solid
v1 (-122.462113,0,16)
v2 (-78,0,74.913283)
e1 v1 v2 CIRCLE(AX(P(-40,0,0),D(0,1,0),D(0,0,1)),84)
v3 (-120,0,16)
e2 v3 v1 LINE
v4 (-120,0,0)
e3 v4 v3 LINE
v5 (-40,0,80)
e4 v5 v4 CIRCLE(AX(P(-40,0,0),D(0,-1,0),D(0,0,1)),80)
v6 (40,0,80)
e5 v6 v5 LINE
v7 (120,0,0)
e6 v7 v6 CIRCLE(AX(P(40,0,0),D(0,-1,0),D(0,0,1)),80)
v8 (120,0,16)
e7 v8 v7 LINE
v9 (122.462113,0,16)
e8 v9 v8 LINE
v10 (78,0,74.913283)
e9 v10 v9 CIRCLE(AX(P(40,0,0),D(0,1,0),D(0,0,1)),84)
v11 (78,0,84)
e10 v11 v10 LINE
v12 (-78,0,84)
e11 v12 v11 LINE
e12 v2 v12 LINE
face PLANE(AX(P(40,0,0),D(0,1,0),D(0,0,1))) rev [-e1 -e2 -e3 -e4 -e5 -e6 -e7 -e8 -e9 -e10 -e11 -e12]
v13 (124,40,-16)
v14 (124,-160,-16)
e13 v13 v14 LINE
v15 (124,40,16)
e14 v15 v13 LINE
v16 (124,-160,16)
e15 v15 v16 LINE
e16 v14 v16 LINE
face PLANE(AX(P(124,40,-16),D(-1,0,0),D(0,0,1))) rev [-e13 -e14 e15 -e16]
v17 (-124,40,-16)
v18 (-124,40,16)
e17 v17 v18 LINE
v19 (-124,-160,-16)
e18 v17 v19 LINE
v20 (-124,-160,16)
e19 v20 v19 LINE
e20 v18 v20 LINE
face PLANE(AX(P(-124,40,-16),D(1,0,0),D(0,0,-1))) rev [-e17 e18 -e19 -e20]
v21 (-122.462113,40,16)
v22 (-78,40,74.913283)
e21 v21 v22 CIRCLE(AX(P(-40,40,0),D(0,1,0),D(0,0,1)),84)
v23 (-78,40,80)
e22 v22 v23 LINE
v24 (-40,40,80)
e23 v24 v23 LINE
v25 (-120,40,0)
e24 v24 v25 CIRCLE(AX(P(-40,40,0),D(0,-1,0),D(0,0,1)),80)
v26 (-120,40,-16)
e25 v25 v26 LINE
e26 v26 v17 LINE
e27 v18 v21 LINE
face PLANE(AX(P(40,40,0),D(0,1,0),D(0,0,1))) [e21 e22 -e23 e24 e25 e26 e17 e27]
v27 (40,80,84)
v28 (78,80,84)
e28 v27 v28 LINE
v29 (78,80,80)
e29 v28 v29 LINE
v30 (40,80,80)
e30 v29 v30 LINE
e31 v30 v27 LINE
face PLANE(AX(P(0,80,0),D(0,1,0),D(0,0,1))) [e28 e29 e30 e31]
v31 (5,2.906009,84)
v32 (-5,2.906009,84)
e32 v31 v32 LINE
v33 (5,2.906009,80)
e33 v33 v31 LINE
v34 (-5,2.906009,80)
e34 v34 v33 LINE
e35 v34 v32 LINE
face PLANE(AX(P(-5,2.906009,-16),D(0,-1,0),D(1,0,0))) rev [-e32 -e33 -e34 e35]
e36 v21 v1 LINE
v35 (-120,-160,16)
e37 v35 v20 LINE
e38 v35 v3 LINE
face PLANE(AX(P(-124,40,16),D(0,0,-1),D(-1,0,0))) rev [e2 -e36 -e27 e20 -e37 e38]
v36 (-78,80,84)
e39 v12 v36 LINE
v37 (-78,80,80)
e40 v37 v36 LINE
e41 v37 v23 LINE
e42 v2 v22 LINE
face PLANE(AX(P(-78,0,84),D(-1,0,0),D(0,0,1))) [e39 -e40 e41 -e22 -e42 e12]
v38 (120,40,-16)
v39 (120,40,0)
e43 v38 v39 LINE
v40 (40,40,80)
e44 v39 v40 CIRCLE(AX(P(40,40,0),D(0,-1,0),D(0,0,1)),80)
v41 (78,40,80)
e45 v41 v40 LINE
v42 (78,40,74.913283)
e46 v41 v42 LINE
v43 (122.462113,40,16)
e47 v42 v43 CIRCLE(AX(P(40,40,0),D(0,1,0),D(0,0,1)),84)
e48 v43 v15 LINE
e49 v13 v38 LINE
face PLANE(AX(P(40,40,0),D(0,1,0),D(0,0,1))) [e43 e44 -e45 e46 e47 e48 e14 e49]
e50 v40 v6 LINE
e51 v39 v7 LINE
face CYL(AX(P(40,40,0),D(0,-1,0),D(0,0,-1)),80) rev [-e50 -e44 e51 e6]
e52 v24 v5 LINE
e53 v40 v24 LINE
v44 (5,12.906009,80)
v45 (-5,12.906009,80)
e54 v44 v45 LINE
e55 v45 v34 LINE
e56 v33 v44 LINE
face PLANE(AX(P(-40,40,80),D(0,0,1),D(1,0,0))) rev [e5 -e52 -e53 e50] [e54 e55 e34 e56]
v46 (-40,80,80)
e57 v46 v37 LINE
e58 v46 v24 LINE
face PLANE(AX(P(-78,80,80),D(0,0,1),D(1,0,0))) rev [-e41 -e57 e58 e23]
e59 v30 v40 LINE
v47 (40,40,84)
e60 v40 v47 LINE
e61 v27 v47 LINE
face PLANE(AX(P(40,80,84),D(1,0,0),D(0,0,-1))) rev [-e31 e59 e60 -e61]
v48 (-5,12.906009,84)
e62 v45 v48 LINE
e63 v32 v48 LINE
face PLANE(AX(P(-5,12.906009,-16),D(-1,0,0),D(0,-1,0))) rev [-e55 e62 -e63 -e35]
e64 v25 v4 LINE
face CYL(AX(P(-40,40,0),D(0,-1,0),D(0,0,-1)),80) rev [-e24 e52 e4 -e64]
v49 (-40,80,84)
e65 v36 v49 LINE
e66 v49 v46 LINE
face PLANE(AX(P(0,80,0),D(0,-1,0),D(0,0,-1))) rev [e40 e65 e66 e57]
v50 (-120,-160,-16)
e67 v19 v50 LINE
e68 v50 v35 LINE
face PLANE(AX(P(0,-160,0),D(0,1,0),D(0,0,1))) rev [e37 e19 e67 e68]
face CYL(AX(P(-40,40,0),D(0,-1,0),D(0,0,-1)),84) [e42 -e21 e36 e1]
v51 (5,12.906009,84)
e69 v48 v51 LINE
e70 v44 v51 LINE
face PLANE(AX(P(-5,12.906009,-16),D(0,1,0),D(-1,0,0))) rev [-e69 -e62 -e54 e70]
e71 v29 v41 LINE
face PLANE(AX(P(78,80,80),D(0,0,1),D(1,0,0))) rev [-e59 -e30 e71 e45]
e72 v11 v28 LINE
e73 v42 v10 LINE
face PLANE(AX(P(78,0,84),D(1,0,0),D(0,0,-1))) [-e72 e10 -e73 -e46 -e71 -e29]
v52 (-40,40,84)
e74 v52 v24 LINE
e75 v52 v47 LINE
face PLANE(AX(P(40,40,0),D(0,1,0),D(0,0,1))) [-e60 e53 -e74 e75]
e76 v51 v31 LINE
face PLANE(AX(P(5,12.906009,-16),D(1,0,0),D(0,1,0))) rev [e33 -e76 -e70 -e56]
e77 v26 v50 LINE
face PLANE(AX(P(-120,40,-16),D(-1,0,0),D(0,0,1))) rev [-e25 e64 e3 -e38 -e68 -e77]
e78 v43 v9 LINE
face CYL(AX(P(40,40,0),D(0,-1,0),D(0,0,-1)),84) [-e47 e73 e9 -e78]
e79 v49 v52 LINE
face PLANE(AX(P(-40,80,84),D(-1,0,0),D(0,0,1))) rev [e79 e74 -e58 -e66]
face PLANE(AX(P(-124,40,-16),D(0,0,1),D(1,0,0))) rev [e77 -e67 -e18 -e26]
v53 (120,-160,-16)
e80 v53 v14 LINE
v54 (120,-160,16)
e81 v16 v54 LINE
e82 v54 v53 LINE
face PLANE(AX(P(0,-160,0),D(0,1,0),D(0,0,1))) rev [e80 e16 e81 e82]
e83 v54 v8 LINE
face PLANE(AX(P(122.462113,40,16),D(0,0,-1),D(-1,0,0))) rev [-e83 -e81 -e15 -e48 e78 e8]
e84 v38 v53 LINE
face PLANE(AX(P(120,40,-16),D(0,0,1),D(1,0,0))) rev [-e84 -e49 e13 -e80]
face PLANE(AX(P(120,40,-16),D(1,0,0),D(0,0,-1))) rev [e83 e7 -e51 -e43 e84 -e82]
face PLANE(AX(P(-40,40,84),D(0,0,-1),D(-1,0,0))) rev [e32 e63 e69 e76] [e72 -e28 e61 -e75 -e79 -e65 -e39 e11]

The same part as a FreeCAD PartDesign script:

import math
import FreeCAD as App
import Part
import Sketcher

V = App.Vector
Q = App.Units.Quantity

doc = App.newDocument("Part")
body = doc.addObject("PartDesign::Body", "Body")

sketch1 = body.newObject("Sketcher::SketchObject", "Sketch")
sketch1.AttachmentSupport = (doc.getObject("XZ_Plane"), [""])
sketch1.MapMode = "FlatFace"
sketch1.addGeometry(Part.LineSegment(V(40, 80, 0), V(-40, 80, 0)), False)
sketch1.addGeometry(Part.ArcOfCircle(Part.Circle(V(-40, 0, 0), V(0, 0, 1), 80), math.radians(90), math.radians(180)), False)
sketch1.addGeometry(Part.LineSegment(V(-120, 0, 0), V(-120, -16, 0)), False)
sketch1.addGeometry(Part.LineSegment(V(-120, -16, 0), V(-124, -16, 0)), False)
sketch1.addGeometry(Part.LineSegment(V(-124, -16, 0), V(-124, 16, 0)), False)
sketch1.addGeometry(Part.LineSegment(V(-124, 16, 0), V(-122.462113, 16, 0)), False)
sketch1.addGeometry(Part.ArcOfCircle(Part.Circle(V(-40, 0, 0), V(0, 0, 1), 84), math.radians(90), math.radians(169.019425)), False)
sketch1.addGeometry(Part.LineSegment(V(-40, 84, 0), V(40, 84, 0)), False)
sketch1.addGeometry(Part.ArcOfCircle(Part.Circle(V(40, 0, 0), V(0, 0, 1), 84), math.radians(10.980575), math.radians(90)), False)
sketch1.addGeometry(Part.LineSegment(V(122.462113, 16, 0), V(124, 16, 0)), False)
sketch1.addGeometry(Part.LineSegment(V(124, 16, 0), V(124, -16, 0)), False)
sketch1.addGeometry(Part.LineSegment(V(124, -16, 0), V(120, -16, 0)), False)
sketch1.addGeometry(Part.LineSegment(V(120, -16, 0), V(120, 0, 0)), False)
sketch1.addGeometry(Part.ArcOfCircle(Part.Circle(V(40, 0, 0), V(0, 0, 1), 80), math.radians(0), math.radians(90)), False)
sketch1.addConstraint(Sketcher.Constraint("Tangent", 0, 2, 1, 1))
sketch1.addConstraint(Sketcher.Constraint("Tangent", 1, 2, 2, 1))
sketch1.addConstraint(Sketcher.Constraint("Coincident", 2, 2, 3, 1))
sketch1.addConstraint(Sketcher.Constraint("Coincident", 3, 2, 4, 1))
sketch1.addConstraint(Sketcher.Constraint("Coincident", 4, 2, 5, 1))
sketch1.addConstraint(Sketcher.Constraint("Coincident", 5, 2, 6, 2))
sketch1.addConstraint(Sketcher.Constraint("Tangent", 6, 1, 7, 1))
sketch1.addConstraint(Sketcher.Constraint("Tangent", 7, 2, 8, 2))
sketch1.addConstraint(Sketcher.Constraint("Coincident", 8, 1, 9, 1))
sketch1.addConstraint(Sketcher.Constraint("Coincident", 9, 2, 10, 1))
sketch1.addConstraint(Sketcher.Constraint("Coincident", 10, 2, 11, 1))
sketch1.addConstraint(Sketcher.Constraint("Coincident", 11, 2, 12, 1))
sketch1.addConstraint(Sketcher.Constraint("Tangent", 12, 2, 13, 1))
sketch1.addConstraint(Sketcher.Constraint("Tangent", 13, 2, 0, 1))
sketch1.addConstraint(Sketcher.Constraint("Horizontal", 0))
sketch1.addConstraint(Sketcher.Constraint("Vertical", 2))
sketch1.addConstraint(Sketcher.Constraint("Horizontal", 3))
sketch1.addConstraint(Sketcher.Constraint("Vertical", 4))
sketch1.addConstraint(Sketcher.Constraint("Horizontal", 5))
sketch1.addConstraint(Sketcher.Constraint("Horizontal", 7))
sketch1.addConstraint(Sketcher.Constraint("Horizontal", 9))
sketch1.addConstraint(Sketcher.Constraint("Vertical", 10))
sketch1.addConstraint(Sketcher.Constraint("Horizontal", 11))
sketch1.addConstraint(Sketcher.Constraint("Vertical", 12))
sketch1.addConstraint(Sketcher.Constraint("Coincident", 6, 3, 1, 3))
sketch1.addConstraint(Sketcher.Constraint("Coincident", 13, 3, 8, 3))
sketch1.addConstraint(Sketcher.Constraint("Equal", 6, 8))
sketch1.addConstraint(Sketcher.Constraint("Symmetric", 1, 3, 8, 3, -1, 1))
sketch1.addConstraint(Sketcher.Constraint("Symmetric", 3, 2, 9, 2, -1, 1))
sketch1.addConstraint(Sketcher.Constraint("Horizontal", 5, 2, 8, 1))
sketch1.addConstraint(Sketcher.Constraint("Horizontal", 3, 2, 10, 2))
sketch1.addConstraint(Sketcher.Constraint("Radius", 1, Q("80 mm")))
sketch1.addConstraint(Sketcher.Constraint("Radius", 6, Q("84 mm")))
sketch1.addConstraint(Sketcher.Constraint("DistanceX", 0, 2, 0, 1, Q("80 mm")))
sketch1.addConstraint(Sketcher.Constraint("DistanceX", 3, 2, 3, 1, Q("4 mm")))
sketch1.addConstraint(Sketcher.Constraint("DistanceY", 2, 2, 2, 1, Q("16 mm")))
pad1 = body.newObject("PartDesign::Pad", "Pad")
pad1.Profile = sketch1
pad1.Length = 40
pad1.Reversed = True

sketch2 = body.newObject("Sketcher::SketchObject", "Sketch001")
sketch2.AttachmentSupport = (doc.getObject("XZ_Plane"), [""])
sketch2.MapMode = "FlatFace"
sketch2.addGeometry(Part.LineSegment(V(-124, 16, 0), V(-124, -16, 0)), False)
sketch2.addGeometry(Part.LineSegment(V(-124, -16, 0), V(-120, -16, 0)), False)
sketch2.addGeometry(Part.LineSegment(V(-120, -16, 0), V(-120, 16, 0)), False)
sketch2.addGeometry(Part.LineSegment(V(-120, 16, 0), V(-124, 16, 0)), False)
sketch2.addGeometry(Part.LineSegment(V(120, 16, 0), V(120, -16, 0)), False)
sketch2.addGeometry(Part.LineSegment(V(120, -16, 0), V(124, -16, 0)), False)
sketch2.addGeometry(Part.LineSegment(V(124, -16, 0), V(124, 16, 0)), False)
sketch2.addGeometry(Part.LineSegment(V(124, 16, 0), V(120, 16, 0)), False)
sketch2.addConstraint(Sketcher.Constraint("Coincident", 0, 2, 1, 1))
sketch2.addConstraint(Sketcher.Constraint("Coincident", 1, 2, 2, 1))
sketch2.addConstraint(Sketcher.Constraint("Coincident", 2, 2, 3, 1))
sketch2.addConstraint(Sketcher.Constraint("Coincident", 3, 2, 0, 1))
sketch2.addConstraint(Sketcher.Constraint("Coincident", 4, 2, 5, 1))
sketch2.addConstraint(Sketcher.Constraint("Coincident", 5, 2, 6, 1))
sketch2.addConstraint(Sketcher.Constraint("Coincident", 6, 2, 7, 1))
sketch2.addConstraint(Sketcher.Constraint("Coincident", 7, 2, 4, 1))
sketch2.addConstraint(Sketcher.Constraint("Vertical", 0))
sketch2.addConstraint(Sketcher.Constraint("Horizontal", 1))
sketch2.addConstraint(Sketcher.Constraint("Vertical", 2))
sketch2.addConstraint(Sketcher.Constraint("Horizontal", 3))
sketch2.addConstraint(Sketcher.Constraint("Vertical", 4))
sketch2.addConstraint(Sketcher.Constraint("Horizontal", 5))
sketch2.addConstraint(Sketcher.Constraint("Vertical", 6))
sketch2.addConstraint(Sketcher.Constraint("Horizontal", 7))
sketch2.addConstraint(Sketcher.Constraint("Symmetric", 2, 2, 4, 2, -1, 1))
sketch2.addConstraint(Sketcher.Constraint("Symmetric", 0, 2, 6, 2, -1, 1))
sketch2.addConstraint(Sketcher.Constraint("Horizontal", 1, 2, 4, 2))
sketch2.addConstraint(Sketcher.Constraint("DistanceX", 1, 1, 1, 2, Q("4 mm")))
sketch2.addConstraint(Sketcher.Constraint("DistanceY", 0, 2, 0, 1, Q("32 mm")))
sketch2.addConstraint(Sketcher.Constraint("DistanceX", 0, 2, -1, 1, Q("124 mm")))
pad2 = body.newObject("PartDesign::Pad", "Pad001")
pad2.Profile = sketch2
pad2.Length = 160

sketch3 = body.newObject("Sketcher::SketchObject", "Sketch002")
sketch3.AttachmentSupport = (doc.getObject("XZ_Plane"), [""])
sketch3.MapMode = "FlatFace"
sketch3.AttachmentOffset = App.Placement(V(0, 0, -40), App.Rotation())
sketch3.addGeometry(Part.LineSegment(V(-78, 84, 0), V(78, 84, 0)), False)
sketch3.addGeometry(Part.LineSegment(V(78, 84, 0), V(78, 72.607732, 0)), False)
sketch3.addGeometry(Part.LineSegment(V(78, 72.607732, 0), V(52.897279, 80.946188, 0)), False)
sketch3.addGeometry(Part.LineSegment(V(52.897279, 80.946188, 0), V(-55.533457, 80.946188, 0)), False)
sketch3.addGeometry(Part.LineSegment(V(-55.533457, 80.946188, 0), V(-78, 74.913283, 0)), False)
sketch3.addGeometry(Part.LineSegment(V(-78, 74.913283, 0), V(-78, 84, 0)), False)
sketch3.addConstraint(Sketcher.Constraint("Coincident", 0, 2, 1, 1))
sketch3.addConstraint(Sketcher.Constraint("Coincident", 1, 2, 2, 1))
sketch3.addConstraint(Sketcher.Constraint("Coincident", 2, 2, 3, 1))
sketch3.addConstraint(Sketcher.Constraint("Coincident", 3, 2, 4, 1))
sketch3.addConstraint(Sketcher.Constraint("Coincident", 4, 2, 5, 1))
sketch3.addConstraint(Sketcher.Constraint("Coincident", 5, 2, 0, 1))
sketch3.addConstraint(Sketcher.Constraint("Horizontal", 0))
sketch3.addConstraint(Sketcher.Constraint("Vertical", 1))
sketch3.addConstraint(Sketcher.Constraint("Horizontal", 3))
sketch3.addConstraint(Sketcher.Constraint("Vertical", 5))
sketch3.addConstraint(Sketcher.Constraint("DistanceX", 0, 1, 0, 2, Q("156 mm")))
sketch3.addConstraint(Sketcher.Constraint("DistanceX", -1, 1, 0, 2, Q("78 mm")))
sketch3.addConstraint(Sketcher.Constraint("DistanceY", -1, 1, 0, 2, Q("84 mm")))
sketch3.addConstraint(Sketcher.Constraint("Distance", 2, Q("26.451398 mm")))
sketch3.addConstraint(Sketcher.Constraint("DistanceY", 1, 2, 1, 1, Q("11.392268 mm")))
sketch3.addConstraint(Sketcher.Constraint("DistanceX", 3, 2, 3, 1, Q("108.430736 mm")))
sketch3.addConstraint(Sketcher.Constraint("DistanceY", 5, 1, 5, 2, Q("9.086717 mm")))
sketch3.addConstraint(Sketcher.Constraint("DistanceX", -1, 1, 2, 2, Q("52.897279 mm")))
pad3 = body.newObject("PartDesign::Pad", "Pad002")
pad3.Profile = sketch3
pad3.Length = 40

sketch4 = body.newObject("Sketcher::SketchObject", "Sketch003")
sketch4.AttachmentSupport = (doc.getObject("XZ_Plane"), [""])
sketch4.MapMode = "FlatFace"
sketch4.AttachmentOffset = App.Placement(V(0, 0, -40), App.Rotation())
sketch4.addGeometry(Part.LineSegment(V(-78, 80, 0), V(-78, 84, 0)), False)
sketch4.addGeometry(Part.LineSegment(V(-78, 84, 0), V(-40, 84, 0)), False)
sketch4.addGeometry(Part.LineSegment(V(-40, 84, 0), V(-40, 80, 0)), False)
sketch4.addGeometry(Part.LineSegment(V(-40, 80, 0), V(-78, 80, 0)), False)
sketch4.addGeometry(Part.LineSegment(V(40, 80, 0), V(40, 84, 0)), False)
sketch4.addGeometry(Part.LineSegment(V(40, 84, 0), V(78, 84, 0)), False)
sketch4.addGeometry(Part.LineSegment(V(78, 84, 0), V(78, 80, 0)), False)
sketch4.addGeometry(Part.LineSegment(V(78, 80, 0), V(40, 80, 0)), False)
sketch4.addConstraint(Sketcher.Constraint("Coincident", 0, 2, 1, 1))
sketch4.addConstraint(Sketcher.Constraint("Coincident", 1, 2, 2, 1))
sketch4.addConstraint(Sketcher.Constraint("Coincident", 2, 2, 3, 1))
sketch4.addConstraint(Sketcher.Constraint("Coincident", 3, 2, 0, 1))
sketch4.addConstraint(Sketcher.Constraint("Coincident", 4, 2, 5, 1))
sketch4.addConstraint(Sketcher.Constraint("Coincident", 5, 2, 6, 1))
sketch4.addConstraint(Sketcher.Constraint("Coincident", 6, 2, 7, 1))
sketch4.addConstraint(Sketcher.Constraint("Coincident", 7, 2, 4, 1))
sketch4.addConstraint(Sketcher.Constraint("Vertical", 0))
sketch4.addConstraint(Sketcher.Constraint("Horizontal", 1))
sketch4.addConstraint(Sketcher.Constraint("Vertical", 2))
sketch4.addConstraint(Sketcher.Constraint("Horizontal", 3))
sketch4.addConstraint(Sketcher.Constraint("Vertical", 4))
sketch4.addConstraint(Sketcher.Constraint("Horizontal", 5))
sketch4.addConstraint(Sketcher.Constraint("Vertical", 6))
sketch4.addConstraint(Sketcher.Constraint("Horizontal", 7))
sketch4.addConstraint(Sketcher.Constraint("Symmetric", 1, 2, 4, 2, -2))
sketch4.addConstraint(Sketcher.Constraint("Symmetric", 3, 2, 6, 2, -2))
sketch4.addConstraint(Sketcher.Constraint("DistanceX", 1, 1, 1, 2, Q("38 mm")))
sketch4.addConstraint(Sketcher.Constraint("DistanceY", 0, 1, 0, 2, Q("4 mm")))
sketch4.addConstraint(Sketcher.Constraint("DistanceX", 0, 2, -1, 1, Q("78 mm")))
sketch4.addConstraint(Sketcher.Constraint("DistanceY", -1, 1, 0, 2, Q("84 mm")))
pad4 = body.newObject("PartDesign::Pad", "Pad003")
pad4.Profile = sketch4
pad4.Length = 40
pad4.Reversed = True

sketch5 = body.newObject("Sketcher::SketchObject", "Sketch004")
sketch5.AttachmentSupport = (doc.getObject("XY_Plane"), [""])
sketch5.MapMode = "FlatFace"
sketch5.AttachmentOffset = App.Placement(V(0, 0, 84), App.Rotation())
sketch5.addGeometry(Part.LineSegment(V(-5, 12.906009, 0), V(-5, 2.906009, 0)), False)
sketch5.addGeometry(Part.LineSegment(V(-5, 2.906009, 0), V(5, 2.906009, 0)), False)
sketch5.addGeometry(Part.LineSegment(V(5, 2.906009, 0), V(5, 12.906009, 0)), False)
sketch5.addGeometry(Part.LineSegment(V(5, 12.906009, 0), V(-5, 12.906009, 0)), False)
sketch5.addConstraint(Sketcher.Constraint("Coincident", 0, 2, 1, 1))
sketch5.addConstraint(Sketcher.Constraint("Coincident", 1, 2, 2, 1))
sketch5.addConstraint(Sketcher.Constraint("Coincident", 2, 2, 3, 1))
sketch5.addConstraint(Sketcher.Constraint("Coincident", 3, 2, 0, 1))
sketch5.addConstraint(Sketcher.Constraint("Vertical", 0))
sketch5.addConstraint(Sketcher.Constraint("Horizontal", 1))
sketch5.addConstraint(Sketcher.Constraint("Vertical", 2))
sketch5.addConstraint(Sketcher.Constraint("Horizontal", 3))
sketch5.addConstraint(Sketcher.Constraint("Equal", 3, 0))
sketch5.addConstraint(Sketcher.Constraint("DistanceX", 1, 1, 1, 2, Q("10 mm")))
sketch5.addConstraint(Sketcher.Constraint("DistanceX", 0, 2, -1, 1, Q("5 mm")))
sketch5.addConstraint(Sketcher.Constraint("DistanceY", -1, 1, 0, 2, Q("2.906009 mm")))
pocket1 = body.newObject("PartDesign::Pocket", "Pocket")
pocket1.Profile = sketch5
pocket1.Type = "ThroughAll"
pocket1.Midplane = True

doc.recompute()
